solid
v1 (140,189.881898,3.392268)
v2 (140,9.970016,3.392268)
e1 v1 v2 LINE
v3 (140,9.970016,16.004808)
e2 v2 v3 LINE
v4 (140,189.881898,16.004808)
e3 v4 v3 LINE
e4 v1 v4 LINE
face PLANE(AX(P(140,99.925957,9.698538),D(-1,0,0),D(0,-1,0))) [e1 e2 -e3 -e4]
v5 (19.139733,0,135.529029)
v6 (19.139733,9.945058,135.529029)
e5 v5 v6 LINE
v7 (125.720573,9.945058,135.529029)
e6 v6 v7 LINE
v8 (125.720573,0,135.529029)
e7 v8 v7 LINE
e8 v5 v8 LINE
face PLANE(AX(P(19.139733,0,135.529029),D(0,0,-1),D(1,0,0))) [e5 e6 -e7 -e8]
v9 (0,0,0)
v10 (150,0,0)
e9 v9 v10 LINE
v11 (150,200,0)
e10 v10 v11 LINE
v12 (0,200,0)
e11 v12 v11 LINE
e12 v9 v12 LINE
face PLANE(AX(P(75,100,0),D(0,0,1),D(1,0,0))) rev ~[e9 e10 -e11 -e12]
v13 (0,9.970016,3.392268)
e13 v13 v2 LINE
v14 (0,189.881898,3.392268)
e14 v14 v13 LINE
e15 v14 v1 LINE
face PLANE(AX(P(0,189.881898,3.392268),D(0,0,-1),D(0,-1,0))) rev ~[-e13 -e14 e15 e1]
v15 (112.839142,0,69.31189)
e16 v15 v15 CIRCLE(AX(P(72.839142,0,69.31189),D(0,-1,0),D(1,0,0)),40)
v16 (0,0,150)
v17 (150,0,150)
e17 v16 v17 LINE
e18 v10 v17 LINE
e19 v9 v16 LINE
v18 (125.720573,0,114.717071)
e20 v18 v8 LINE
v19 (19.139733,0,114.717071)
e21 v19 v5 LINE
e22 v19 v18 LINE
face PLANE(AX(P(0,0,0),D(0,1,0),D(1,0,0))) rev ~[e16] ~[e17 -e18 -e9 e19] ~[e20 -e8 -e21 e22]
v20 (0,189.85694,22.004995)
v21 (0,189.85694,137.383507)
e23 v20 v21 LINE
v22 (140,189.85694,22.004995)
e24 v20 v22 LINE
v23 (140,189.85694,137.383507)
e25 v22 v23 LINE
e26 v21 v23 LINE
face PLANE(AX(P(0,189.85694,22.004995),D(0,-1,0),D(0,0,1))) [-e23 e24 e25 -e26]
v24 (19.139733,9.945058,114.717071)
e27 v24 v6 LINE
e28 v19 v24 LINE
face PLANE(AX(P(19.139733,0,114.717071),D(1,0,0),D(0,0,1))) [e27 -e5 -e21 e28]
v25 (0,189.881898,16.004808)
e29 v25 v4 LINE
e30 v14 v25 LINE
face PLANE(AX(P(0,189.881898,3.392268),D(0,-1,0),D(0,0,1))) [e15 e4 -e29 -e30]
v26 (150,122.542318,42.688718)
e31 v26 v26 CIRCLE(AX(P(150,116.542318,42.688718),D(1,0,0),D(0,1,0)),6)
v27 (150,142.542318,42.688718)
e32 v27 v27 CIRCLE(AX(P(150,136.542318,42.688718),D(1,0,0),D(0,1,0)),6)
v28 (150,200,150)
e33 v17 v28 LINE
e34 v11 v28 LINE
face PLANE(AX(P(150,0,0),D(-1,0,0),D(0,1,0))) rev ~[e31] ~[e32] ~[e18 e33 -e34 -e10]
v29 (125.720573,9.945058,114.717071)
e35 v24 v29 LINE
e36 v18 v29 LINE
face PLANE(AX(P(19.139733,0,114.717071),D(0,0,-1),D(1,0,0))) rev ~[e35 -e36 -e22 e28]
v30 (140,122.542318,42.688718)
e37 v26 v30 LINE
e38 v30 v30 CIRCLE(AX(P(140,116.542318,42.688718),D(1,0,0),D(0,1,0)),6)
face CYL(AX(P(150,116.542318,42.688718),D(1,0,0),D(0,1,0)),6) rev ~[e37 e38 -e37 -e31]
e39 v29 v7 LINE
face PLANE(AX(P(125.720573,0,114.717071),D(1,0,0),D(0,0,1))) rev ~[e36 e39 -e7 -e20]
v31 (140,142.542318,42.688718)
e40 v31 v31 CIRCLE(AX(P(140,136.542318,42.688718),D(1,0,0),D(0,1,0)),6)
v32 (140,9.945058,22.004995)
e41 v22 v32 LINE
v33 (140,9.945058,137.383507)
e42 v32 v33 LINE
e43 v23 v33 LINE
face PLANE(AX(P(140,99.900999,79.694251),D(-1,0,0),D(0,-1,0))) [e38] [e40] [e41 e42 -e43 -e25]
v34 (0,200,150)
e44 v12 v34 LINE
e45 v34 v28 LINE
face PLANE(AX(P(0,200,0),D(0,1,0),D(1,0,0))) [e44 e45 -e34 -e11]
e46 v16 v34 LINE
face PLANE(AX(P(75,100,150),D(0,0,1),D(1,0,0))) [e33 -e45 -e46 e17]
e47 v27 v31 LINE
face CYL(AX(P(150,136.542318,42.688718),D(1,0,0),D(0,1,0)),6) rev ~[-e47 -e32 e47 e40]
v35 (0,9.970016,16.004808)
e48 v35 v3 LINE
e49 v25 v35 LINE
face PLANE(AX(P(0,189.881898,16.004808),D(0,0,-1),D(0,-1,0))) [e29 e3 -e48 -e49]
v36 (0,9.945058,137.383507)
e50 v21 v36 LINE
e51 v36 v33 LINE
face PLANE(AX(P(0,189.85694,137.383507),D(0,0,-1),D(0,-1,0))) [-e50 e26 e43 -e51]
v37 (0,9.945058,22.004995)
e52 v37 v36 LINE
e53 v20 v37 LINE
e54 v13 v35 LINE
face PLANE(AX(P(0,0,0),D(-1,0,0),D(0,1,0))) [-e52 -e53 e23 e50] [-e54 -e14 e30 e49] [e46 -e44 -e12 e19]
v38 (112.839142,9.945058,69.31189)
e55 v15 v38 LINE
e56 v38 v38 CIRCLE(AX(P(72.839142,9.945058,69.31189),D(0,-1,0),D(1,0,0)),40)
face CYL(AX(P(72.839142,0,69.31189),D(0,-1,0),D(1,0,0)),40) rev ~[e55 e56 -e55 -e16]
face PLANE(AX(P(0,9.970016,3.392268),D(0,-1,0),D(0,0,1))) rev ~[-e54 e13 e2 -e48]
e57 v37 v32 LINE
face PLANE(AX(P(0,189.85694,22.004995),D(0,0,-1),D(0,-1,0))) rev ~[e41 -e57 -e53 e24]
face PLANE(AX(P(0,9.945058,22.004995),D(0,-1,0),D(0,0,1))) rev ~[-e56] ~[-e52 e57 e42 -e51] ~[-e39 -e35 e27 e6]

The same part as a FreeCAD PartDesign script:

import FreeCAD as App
import Part
import Sketcher

V = App.Vector
Q = App.Units.Quantity


def add_polygon(sketch, points):
    """Adds a closed chain of lines whose ends are joined by coincident constraints."""
    first, n = sketch.GeometryCount, len(points)
    for a, b in zip(points, points[1:] + points[:1]):
        sketch.addGeometry(Part.LineSegment(App.Vector(*a, 0), App.Vector(*b, 0)), False)
    for i in range(n):
        sketch.addConstraint(Sketcher.Constraint("Coincident", first + i, 2, first + (i + 1) % n, 1))

doc = App.newDocument("Part")
body = doc.addObject("PartDesign::Body", "Body")

# Sketch on XY plane
sketch1 = doc.addObject("Sketcher::SketchObject", "Sketch")
body.addObject(sketch1)
sketch1.AttachmentSupport = (doc.XY_Plane, [""])
sketch1.MapMode = "FlatFace"
add_polygon(sketch1, [(0, 200), (0, 0), (150, 0), (150, 200)])  # lines 0-3
sketch1.addConstraint(Sketcher.Constraint("Vertical", 0))
sketch1.addConstraint(Sketcher.Constraint("Horizontal", 1))
sketch1.addConstraint(Sketcher.Constraint("Vertical", 2))
sketch1.addConstraint(Sketcher.Constraint("Horizontal", 3))
sketch1.addConstraint(Sketcher.Constraint("Coincident", 0, 2, -1, 1))
sketch1.addConstraint(Sketcher.Constraint("DistanceX", 1, 1, 1, 2, Q("150 mm")))
sketch1.addConstraint(Sketcher.Constraint("DistanceY", 0, 2, 0, 1, Q("200 mm")))
pad1 = doc.addObject("PartDesign::Pad", "Pad")
body.addObject(pad1)
pad1.Profile = sketch1
pad1.Length = 150

# Sketch on YZ plane
sketch2 = doc.addObject("Sketcher::SketchObject", "Sketch001")
body.addObject(sketch2)
sketch2.AttachmentSupport = (doc.YZ_Plane, [""])
sketch2.MapMode = "FlatFace"
add_polygon(sketch2, [(189.85694, 137.383507), (189.85694, 22.004995), (9.945058, 22.004995), (9.945058, 137.383507)])  # lines 0-3
add_polygon(sketch2, [(189.881898, 16.004808), (189.881898, 3.392268), (9.970016, 3.392268), (9.970016, 16.004808)])  # lines 4-7
sketch2.addConstraint(Sketcher.Constraint("Vertical", 0))
sketch2.addConstraint(Sketcher.Constraint("Horizontal", 1))
sketch2.addConstraint(Sketcher.Constraint("Vertical", 2))
sketch2.addConstraint(Sketcher.Constraint("Horizontal", 3))
sketch2.addConstraint(Sketcher.Constraint("Vertical", 4))
sketch2.addConstraint(Sketcher.Constraint("Horizontal", 5))
sketch2.addConstraint(Sketcher.Constraint("Vertical", 6))
sketch2.addConstraint(Sketcher.Constraint("Horizontal", 7))
sketch2.addConstraint(Sketcher.Constraint("Equal", 3, 5))
sketch2.addConstraint(Sketcher.Constraint("DistanceX", 5, 2, 5, 1, Q("179.911881 mm")))
sketch2.addConstraint(Sketcher.Constraint("DistanceY", 0, 2, 0, 1, Q("115.378512 mm")))
sketch2.addConstraint(Sketcher.Constraint("DistanceY", 4, 2, 4, 1, Q("12.61254 mm")))
sketch2.addConstraint(Sketcher.Constraint("DistanceY", 6, 2, 2, 2, Q("121.378699 mm")))
sketch2.addConstraint(Sketcher.Constraint("DistanceX", -1, 1, 0, 2, Q("189.85694 mm")))
sketch2.addConstraint(Sketcher.Constraint("DistanceY", -1, 1, 4, 2, Q("3.392268 mm")))
sketch2.addConstraint(Sketcher.Constraint("DistanceX", 1, 2, 4, 2, Q("179.93684 mm")))
pocket1 = doc.addObject("PartDesign::Pocket", "Pocket")
body.addObject(pocket1)
pocket1.Profile = sketch2
pocket1.Length = 140
pocket1.Reversed = True

# Sketch on XZ plane
sketch3 = doc.addObject("Sketcher::SketchObject", "Sketch002")
body.addObject(sketch3)
sketch3.AttachmentSupport = (doc.XZ_Plane, [""])
sketch3.MapMode = "FlatFace"
sketch3.addGeometry(Part.Circle(V(72.839142, 69.31189, 0), V(0, 0, 1), 40), False)  # 0
add_polygon(sketch3, [(460.074706, 971.328553), (460.074706, 783.369324), (1054.233428, 783.369324), (1054.233428, 971.328553)])  # lines 1-4
add_polygon(sketch3, [(19.139733, 135.529029), (19.139733, 114.717071), (125.720573, 114.717071), (125.720573, 135.529029)])  # lines 5-8
sketch3.addConstraint(Sketcher.Constraint("Vertical", 1))
sketch3.addConstraint(Sketcher.Constraint("Horizontal", 2))
sketch3.addConstraint(Sketcher.Constraint("Vertical", 3))
sketch3.addConstraint(Sketcher.Constraint("Horizontal", 4))
sketch3.addConstraint(Sketcher.Constraint("Vertical", 5))
sketch3.addConstraint(Sketcher.Constraint("Horizontal", 6))
sketch3.addConstraint(Sketcher.Constraint("Vertical", 7))
sketch3.addConstraint(Sketcher.Constraint("Horizontal", 8))
sketch3.addConstraint(Sketcher.Constraint("Diameter", 0, Q("80 mm")))
sketch3.addConstraint(Sketcher.Constraint("DistanceX", 2, 1, 2, 2, Q("594.158722 mm")))
sketch3.addConstraint(Sketcher.Constraint("DistanceX", 6, 1, 6, 2, Q("106.580839 mm")))
sketch3.addConstraint(Sketcher.Constraint("DistanceY", 1, 2, 1, 1, Q("187.959229 mm")))
sketch3.addConstraint(Sketcher.Constraint("DistanceY", 5, 2, 5, 1, Q("20.811958 mm")))
sketch3.addConstraint(Sketcher.Constraint("DistanceX", -1, 1, 0, 3, Q("72.839142 mm")))
sketch3.addConstraint(Sketcher.Constraint("DistanceY", -1, 1, 0, 3, Q("69.31189 mm")))
sketch3.addConstraint(Sketcher.Constraint("DistanceX", -1, 1, 2, 2, Q("1054.233428 mm")))
sketch3.addConstraint(Sketcher.Constraint("DistanceY", -1, 1, 5, 2, Q("114.717071 mm")))
sketch3.addConstraint(Sketcher.Constraint("DistanceX", 5, 2, 0, 3, Q("53.699408 mm")))
sketch3.addConstraint(Sketcher.Constraint("DistanceY", -1, 1, 1, 2, Q("783.369324 mm")))
pocket2 = doc.addObject("PartDesign::Pocket", "Pocket001")
body.addObject(pocket2)
pocket2.Profile = sketch3
pocket2.Length = 20

# Sketch on YZ plane
sketch4 = doc.addObject("Sketcher::SketchObject", "Sketch003")
body.addObject(sketch4)
sketch4.AttachmentSupport = (doc.YZ_Plane, [""])
sketch4.MapMode = "FlatFace"
sketch4.AttachmentOffset = App.Placement(V(0, 0, 150), App.Rotation())
sketch4.addGeometry(Part.Circle(V(116.542318, 42.688718, 0), V(0, 0, 1), 6), False)
sketch4.addGeometry(Part.Circle(V(136.542318, 42.688718, 0), V(0, 0, 1), 6), False)
sketch4.addConstraint(Sketcher.Constraint("Equal", 0, 1))
sketch4.addConstraint(Sketcher.Constraint("Horizontal", 0, 3, 1, 3))
sketch4.addConstraint(Sketcher.Constraint("Diameter", 0, Q("12 mm")))
sketch4.addConstraint(Sketcher.Constraint("DistanceX", 0, 3, 1, 3, Q("20 mm")))
sketch4.addConstraint(Sketcher.Constraint("DistanceX", -1, 1, 1, 3, Q("136.542318 mm")))
sketch4.addConstraint(Sketcher.Constraint("DistanceY", -1, 1, 0, 3, Q("42.688718 mm")))
pocket3 = doc.addObject("PartDesign::Pocket", "Pocket002")
body.addObject(pocket3)
pocket3.Profile = sketch4
pocket3.Length = 20

doc.recompute()
